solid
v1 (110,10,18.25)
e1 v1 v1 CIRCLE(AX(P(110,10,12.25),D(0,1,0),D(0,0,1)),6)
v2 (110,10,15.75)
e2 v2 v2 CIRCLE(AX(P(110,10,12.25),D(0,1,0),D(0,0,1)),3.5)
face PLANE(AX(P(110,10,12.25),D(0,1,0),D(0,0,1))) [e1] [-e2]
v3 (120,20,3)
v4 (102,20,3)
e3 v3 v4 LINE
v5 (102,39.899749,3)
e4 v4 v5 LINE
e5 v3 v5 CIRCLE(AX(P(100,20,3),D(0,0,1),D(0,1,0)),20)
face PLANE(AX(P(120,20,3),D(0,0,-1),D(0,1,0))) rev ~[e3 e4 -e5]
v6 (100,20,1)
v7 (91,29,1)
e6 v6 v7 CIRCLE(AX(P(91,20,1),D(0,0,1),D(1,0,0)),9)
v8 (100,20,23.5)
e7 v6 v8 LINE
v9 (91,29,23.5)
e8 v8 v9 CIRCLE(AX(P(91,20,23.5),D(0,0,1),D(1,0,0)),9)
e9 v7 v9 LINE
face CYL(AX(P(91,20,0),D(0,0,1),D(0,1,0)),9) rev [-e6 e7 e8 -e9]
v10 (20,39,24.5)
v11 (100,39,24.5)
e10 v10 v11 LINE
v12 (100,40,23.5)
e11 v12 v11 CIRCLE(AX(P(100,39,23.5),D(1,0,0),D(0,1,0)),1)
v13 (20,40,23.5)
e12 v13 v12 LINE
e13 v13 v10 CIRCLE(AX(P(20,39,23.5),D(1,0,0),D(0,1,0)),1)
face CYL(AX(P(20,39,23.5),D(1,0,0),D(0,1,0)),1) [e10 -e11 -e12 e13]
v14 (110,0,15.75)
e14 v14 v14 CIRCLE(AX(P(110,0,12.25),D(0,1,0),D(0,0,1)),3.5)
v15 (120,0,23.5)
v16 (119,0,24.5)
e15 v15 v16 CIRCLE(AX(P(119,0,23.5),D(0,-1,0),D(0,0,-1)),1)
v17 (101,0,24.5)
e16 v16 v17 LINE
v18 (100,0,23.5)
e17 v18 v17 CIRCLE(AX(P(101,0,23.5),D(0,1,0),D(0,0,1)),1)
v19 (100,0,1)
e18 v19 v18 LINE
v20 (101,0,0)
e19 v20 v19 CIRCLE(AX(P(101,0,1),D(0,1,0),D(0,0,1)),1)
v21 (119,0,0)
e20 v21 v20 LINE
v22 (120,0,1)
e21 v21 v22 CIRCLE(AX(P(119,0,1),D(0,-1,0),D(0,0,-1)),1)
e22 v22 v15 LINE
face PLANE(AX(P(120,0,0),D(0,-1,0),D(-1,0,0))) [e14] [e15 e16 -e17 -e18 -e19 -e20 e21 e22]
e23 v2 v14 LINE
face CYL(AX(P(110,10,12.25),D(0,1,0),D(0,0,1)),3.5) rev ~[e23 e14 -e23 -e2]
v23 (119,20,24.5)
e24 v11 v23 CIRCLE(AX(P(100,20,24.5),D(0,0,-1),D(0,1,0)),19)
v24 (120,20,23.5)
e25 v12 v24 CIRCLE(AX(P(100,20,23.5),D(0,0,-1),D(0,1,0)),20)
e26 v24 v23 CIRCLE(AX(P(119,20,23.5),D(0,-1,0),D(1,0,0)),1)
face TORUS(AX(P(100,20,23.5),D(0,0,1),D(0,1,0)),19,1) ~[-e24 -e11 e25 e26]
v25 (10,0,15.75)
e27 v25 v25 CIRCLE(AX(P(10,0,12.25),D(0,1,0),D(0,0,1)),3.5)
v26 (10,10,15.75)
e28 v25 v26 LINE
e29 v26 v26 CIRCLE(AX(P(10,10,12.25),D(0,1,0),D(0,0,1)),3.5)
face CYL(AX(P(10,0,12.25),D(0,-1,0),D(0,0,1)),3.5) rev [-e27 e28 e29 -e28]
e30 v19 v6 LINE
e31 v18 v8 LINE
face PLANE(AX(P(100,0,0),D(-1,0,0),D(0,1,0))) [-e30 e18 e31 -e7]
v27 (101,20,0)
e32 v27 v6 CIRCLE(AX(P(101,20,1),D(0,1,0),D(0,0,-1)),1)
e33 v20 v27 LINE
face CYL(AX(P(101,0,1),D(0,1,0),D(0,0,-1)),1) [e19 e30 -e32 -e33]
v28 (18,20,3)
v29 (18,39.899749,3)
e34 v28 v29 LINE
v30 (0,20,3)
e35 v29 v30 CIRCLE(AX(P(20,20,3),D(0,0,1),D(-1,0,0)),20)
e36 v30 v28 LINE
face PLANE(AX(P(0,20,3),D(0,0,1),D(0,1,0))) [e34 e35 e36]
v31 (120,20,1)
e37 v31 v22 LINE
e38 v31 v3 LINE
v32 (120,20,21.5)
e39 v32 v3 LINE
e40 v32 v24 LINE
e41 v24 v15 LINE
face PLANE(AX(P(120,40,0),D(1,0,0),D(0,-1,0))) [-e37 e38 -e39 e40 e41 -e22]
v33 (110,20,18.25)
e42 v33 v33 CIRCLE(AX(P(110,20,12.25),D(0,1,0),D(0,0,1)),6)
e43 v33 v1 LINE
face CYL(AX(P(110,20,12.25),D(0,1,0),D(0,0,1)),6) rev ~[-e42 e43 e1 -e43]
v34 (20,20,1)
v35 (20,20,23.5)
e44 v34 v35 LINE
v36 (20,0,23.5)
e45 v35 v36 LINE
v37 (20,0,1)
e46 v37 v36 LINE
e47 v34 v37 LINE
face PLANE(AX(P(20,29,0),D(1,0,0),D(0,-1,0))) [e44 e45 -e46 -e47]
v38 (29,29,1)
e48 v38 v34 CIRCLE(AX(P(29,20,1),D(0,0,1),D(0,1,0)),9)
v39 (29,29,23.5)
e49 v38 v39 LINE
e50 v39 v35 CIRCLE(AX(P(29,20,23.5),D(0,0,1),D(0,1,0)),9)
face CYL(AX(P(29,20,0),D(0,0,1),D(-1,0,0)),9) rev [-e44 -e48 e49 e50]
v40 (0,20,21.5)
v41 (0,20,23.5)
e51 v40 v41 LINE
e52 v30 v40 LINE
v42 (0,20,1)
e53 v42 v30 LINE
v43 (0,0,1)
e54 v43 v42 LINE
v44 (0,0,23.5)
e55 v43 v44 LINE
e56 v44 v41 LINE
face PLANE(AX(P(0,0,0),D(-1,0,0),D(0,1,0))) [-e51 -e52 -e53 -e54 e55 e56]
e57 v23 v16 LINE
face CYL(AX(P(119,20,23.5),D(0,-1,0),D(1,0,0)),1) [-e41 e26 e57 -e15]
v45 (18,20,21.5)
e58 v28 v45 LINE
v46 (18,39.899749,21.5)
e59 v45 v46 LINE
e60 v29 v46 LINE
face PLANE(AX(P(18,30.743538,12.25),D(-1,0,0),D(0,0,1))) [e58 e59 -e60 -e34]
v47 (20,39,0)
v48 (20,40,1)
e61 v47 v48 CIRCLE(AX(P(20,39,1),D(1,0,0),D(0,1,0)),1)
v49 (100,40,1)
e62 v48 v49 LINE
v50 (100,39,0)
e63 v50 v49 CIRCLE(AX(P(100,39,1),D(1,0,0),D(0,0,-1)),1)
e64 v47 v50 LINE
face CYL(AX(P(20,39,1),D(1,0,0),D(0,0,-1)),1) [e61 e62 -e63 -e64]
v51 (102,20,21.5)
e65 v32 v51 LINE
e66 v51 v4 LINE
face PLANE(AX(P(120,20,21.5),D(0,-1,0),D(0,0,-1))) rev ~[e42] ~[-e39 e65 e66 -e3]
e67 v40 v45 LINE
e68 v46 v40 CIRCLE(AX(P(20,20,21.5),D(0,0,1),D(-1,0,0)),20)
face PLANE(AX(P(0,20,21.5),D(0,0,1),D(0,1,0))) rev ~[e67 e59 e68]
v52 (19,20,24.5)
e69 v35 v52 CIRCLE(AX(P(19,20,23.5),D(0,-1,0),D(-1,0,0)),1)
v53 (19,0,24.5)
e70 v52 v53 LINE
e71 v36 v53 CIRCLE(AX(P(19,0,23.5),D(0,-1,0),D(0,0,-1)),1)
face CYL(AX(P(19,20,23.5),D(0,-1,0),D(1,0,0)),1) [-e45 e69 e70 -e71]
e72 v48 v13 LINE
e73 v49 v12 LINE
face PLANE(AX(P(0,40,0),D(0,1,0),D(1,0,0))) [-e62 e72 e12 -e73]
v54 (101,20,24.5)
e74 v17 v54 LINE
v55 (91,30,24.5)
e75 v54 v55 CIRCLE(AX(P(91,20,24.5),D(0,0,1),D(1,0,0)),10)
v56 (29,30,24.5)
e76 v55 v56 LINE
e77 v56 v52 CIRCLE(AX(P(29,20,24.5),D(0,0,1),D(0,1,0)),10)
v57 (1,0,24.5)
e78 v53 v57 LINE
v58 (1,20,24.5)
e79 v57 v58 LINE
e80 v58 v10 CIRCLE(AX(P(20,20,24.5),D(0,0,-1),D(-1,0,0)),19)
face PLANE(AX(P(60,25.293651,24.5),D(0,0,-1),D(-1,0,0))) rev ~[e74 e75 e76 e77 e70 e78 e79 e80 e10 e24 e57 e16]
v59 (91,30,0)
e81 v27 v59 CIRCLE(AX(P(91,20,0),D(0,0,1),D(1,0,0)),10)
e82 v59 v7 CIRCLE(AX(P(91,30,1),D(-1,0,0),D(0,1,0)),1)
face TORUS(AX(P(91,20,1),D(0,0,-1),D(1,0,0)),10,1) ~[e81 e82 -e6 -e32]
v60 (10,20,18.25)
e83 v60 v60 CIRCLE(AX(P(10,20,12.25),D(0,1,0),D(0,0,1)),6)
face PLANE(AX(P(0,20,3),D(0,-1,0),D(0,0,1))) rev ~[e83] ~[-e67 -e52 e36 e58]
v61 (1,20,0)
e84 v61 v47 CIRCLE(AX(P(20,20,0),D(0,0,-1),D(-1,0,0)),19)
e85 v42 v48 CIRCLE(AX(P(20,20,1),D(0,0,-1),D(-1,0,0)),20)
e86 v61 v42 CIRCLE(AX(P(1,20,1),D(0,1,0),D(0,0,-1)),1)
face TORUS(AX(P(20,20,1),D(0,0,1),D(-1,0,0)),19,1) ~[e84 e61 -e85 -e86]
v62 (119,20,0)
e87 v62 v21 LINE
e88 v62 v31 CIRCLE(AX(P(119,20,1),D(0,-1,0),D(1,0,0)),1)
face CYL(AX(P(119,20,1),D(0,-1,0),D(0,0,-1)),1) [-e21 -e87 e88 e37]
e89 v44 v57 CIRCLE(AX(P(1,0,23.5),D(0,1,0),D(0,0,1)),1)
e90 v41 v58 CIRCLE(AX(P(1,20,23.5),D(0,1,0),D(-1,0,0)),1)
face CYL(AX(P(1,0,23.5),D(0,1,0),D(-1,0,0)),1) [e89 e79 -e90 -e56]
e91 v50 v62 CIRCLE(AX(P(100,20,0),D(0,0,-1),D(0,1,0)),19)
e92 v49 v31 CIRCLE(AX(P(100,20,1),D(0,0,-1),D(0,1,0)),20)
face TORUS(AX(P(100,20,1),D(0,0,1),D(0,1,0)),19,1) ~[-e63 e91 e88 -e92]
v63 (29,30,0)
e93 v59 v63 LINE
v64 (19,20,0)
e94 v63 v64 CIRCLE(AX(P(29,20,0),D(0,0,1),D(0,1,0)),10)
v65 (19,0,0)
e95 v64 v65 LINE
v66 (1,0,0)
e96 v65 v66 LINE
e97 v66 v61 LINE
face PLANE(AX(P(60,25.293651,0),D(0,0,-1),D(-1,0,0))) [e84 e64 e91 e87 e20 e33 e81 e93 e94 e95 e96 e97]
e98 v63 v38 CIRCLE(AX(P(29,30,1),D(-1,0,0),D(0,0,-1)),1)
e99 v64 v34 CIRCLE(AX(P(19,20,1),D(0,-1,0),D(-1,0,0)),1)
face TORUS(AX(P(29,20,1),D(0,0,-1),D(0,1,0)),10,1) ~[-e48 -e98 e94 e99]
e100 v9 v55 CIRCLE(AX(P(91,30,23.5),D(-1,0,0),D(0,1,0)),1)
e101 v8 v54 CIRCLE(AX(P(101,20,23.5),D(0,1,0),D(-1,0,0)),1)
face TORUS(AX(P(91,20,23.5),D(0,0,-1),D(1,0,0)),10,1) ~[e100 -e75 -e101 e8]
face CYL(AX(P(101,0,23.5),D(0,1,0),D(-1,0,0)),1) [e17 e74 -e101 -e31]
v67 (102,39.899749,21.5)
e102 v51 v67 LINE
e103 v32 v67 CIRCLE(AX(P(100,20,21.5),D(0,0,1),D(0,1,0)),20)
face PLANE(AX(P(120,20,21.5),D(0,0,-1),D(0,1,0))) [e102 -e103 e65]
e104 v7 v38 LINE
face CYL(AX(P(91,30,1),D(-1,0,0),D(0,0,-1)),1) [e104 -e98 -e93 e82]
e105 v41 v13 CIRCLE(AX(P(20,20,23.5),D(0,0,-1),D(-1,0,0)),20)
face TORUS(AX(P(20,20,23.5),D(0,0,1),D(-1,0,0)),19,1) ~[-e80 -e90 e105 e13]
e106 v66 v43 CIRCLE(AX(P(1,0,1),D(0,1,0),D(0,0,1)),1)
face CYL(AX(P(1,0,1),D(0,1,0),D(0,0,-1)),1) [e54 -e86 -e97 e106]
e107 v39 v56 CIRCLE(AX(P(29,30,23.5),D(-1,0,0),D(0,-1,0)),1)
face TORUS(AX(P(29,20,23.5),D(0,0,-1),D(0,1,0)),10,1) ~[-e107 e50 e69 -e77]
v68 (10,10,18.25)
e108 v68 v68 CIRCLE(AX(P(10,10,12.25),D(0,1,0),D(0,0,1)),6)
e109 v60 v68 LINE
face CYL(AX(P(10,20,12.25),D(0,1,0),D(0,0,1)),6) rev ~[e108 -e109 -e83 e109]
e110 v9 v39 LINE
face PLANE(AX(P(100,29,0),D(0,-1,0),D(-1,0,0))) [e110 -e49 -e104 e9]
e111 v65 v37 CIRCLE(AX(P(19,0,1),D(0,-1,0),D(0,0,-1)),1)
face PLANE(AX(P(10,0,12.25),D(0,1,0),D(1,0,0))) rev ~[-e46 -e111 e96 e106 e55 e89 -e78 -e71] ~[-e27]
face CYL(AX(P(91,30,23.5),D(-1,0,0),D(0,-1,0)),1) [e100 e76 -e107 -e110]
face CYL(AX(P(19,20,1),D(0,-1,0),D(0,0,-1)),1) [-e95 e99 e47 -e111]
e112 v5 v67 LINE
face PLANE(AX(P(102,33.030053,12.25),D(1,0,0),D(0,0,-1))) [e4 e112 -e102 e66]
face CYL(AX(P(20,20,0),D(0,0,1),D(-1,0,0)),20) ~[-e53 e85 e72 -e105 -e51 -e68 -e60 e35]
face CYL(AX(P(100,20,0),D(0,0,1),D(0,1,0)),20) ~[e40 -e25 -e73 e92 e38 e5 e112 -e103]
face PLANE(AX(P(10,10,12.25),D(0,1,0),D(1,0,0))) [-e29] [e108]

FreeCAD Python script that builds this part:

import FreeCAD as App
import Part
import Sketcher

V = App.Vector
Q = App.Units.Quantity


def edges_at(feature, points):
    """Names of the edges that pass closest to the given points."""
    edges = feature.Shape.Edges
    near = lambda p: min(range(len(edges)), key=lambda i: edges[i].distToShape(Part.Vertex(*p))[0])
    return sorted({f"Edge{near(p) + 1}" for p in points})


def add_polygon(sketch, points):
    """Adds a closed chain of lines whose ends are joined by coincident constraints."""
    first, n = sketch.GeometryCount, len(points)
    for a, b in zip(points, points[1:] + points[:1]):
        sketch.addGeometry(Part.LineSegment(App.Vector(*a, 0), App.Vector(*b, 0)), False)
    for i in range(n):
        sketch.addConstraint(Sketcher.Constraint("Coincident", first + i, 2, first + (i + 1) % n, 1))

doc = App.newDocument("Part")
body = doc.addObject("PartDesign::Body", "Body")

sketch1 = body.newObject("Sketcher::SketchObject", "Sketch")
sketch1.AttachmentSupport = (doc.getObject("XY_Plane"), [""])
sketch1.MapMode = "FlatFace"
add_polygon(sketch1, [(0, 40), (0, 0), (20, 0), (20, 29), (100, 29), (100, 0), (120, 0), (120, 40)])
sketch1.addConstraint([
    Sketcher.Constraint("Vertical", 0),
    Sketcher.Constraint("Horizontal", 1),
    Sketcher.Constraint("Vertical", 2),
    Sketcher.Constraint("Horizontal", 3),
    Sketcher.Constraint("Vertical", 4),
    Sketcher.Constraint("Horizontal", 5),
    Sketcher.Constraint("Vertical", 6),
    Sketcher.Constraint("Horizontal", 7),
    Sketcher.Constraint("Coincident", 0, 2, -1, 1),
    Sketcher.Constraint("PointOnObject", 4, 2, -1),
    Sketcher.Constraint("Equal", 1, 5),
    Sketcher.Constraint("DistanceX", 1, 1, 1, 2, Q("20 mm")),
    Sketcher.Constraint("DistanceX", 3, 1, 3, 2, Q("80 mm")),
    Sketcher.Constraint("DistanceY", 0, 2, 0, 1, Q("40 mm")),
    Sketcher.Constraint("DistanceY", 2, 1, 2, 2, Q("29 mm")),
])
pad1 = body.newObject("PartDesign::Pad", "Pad")
pad1.Profile = sketch1
pad1.Length = 24.5
doc.recompute()

fillet = body.newObject("PartDesign::Fillet", "Fillet")
fillet.Base = (pad1, edges_at(pad1, [(0, 40, 12.25), (120, 40, 12.25)]))
fillet.Radius = 20
doc.recompute()

fillet2 = body.newObject("PartDesign::Fillet", "Fillet001")
fillet2.Base = (fillet, edges_at(fillet, [(100, 29, 12.25), (20, 29, 12.25)]))
fillet2.Radius = 9

sketch2 = body.newObject("Sketcher::SketchObject", "Sketch001")
sketch2.AttachmentSupport = (doc.getObject("YZ_Plane"), [""])
sketch2.MapMode = "FlatFace"
sketch2.AttachmentOffset = App.Placement(V(0, 0, 120), App.Rotation())
add_polygon(sketch2, [(46.060106, 21.5), (20, 21.5), (20, 3), (46.060106, 3)])
sketch2.addConstraint([
    Sketcher.Constraint("Horizontal", 0),
    Sketcher.Constraint("Vertical", 1),
    Sketcher.Constraint("Horizontal", 2),
    Sketcher.Constraint("Vertical", 3),
    Sketcher.Constraint("DistanceY", 1, 2, 1, 1, Q("18.5 mm")),
    Sketcher.Constraint("DistanceX", -1, 1, 0, 2, Q("20 mm")),
    Sketcher.Constraint("DistanceY", -1, 1, 1, 2, Q("3 mm")),
    Sketcher.Constraint("DistanceX", 0, 2, 0, 1, Q("26.060106 mm")),
])
pocket1 = body.newObject("PartDesign::Pocket", "Pocket")
pocket1.Profile = sketch2
pocket1.Length = 18

sketch3 = body.newObject("Sketcher::SketchObject", "Sketch002")
sketch3.AttachmentSupport = (doc.getObject("YZ_Plane"), [""])
sketch3.MapMode = "FlatFace"
add_polygon(sketch3, [(41.487076, 3), (20, 3), (20, 21.5), (41.487076, 21.5)])
sketch3.addConstraint([
    Sketcher.Constraint("Horizontal", 0),
    Sketcher.Constraint("Vertical", 1),
    Sketcher.Constraint("Horizontal", 2),
    Sketcher.Constraint("Vertical", 3),
    Sketcher.Constraint("DistanceY", 1, 1, 1, 2, Q("18.5 mm")),
    Sketcher.Constraint("DistanceX", -1, 1, 0, 2, Q("20 mm")),
    Sketcher.Constraint("DistanceY", -1, 1, 0, 2, Q("3 mm")),
    Sketcher.Constraint("DistanceX", 0, 2, 0, 1, Q("21.487076 mm")),
])
pocket2 = body.newObject("PartDesign::Pocket", "Pocket001")
pocket2.Profile = sketch3
pocket2.Length = 18
pocket2.Reversed = True
doc.recompute()

fillet3 = body.newObject("PartDesign::Fillet", "Fillet002")
fillet3.Base = (pocket2, edges_at(pocket2, [
    (20, 10, 0),
    (120, 10, 24.5),
    (0, 10, 0),
    (0, 10, 24.5),
    (60, 40, 0),
    (114.142, 34.142, 0),
    (5.858, 34.142, 0),
    (60, 40, 24.5),
    (114.142, 34.142, 24.5),
    (5.858, 34.142, 24.5),
    (60, 29, 0),
    (60, 29, 24.5),
    (100, 10, 0),
    (100, 10, 24.5),
    (22.636, 26.364, 0),
    (22.636, 26.364, 24.5),
    (97.364, 26.364, 0),
    (97.364, 26.364, 24.5),
    (20, 10, 24.5),
    (120, 10, 0),
]))
fillet3.Radius = 1

sketch4 = body.newObject("Sketcher::SketchObject", "Sketch003")
sketch4.AttachmentSupport = (doc.getObject("XZ_Plane"), [""])
sketch4.MapMode = "FlatFace"
sketch4.addGeometry([
    Part.Circle(V(10, 12.25, 0), V(0, 0, 1), 4),
    Part.Circle(V(110, 12.25, 0), V(0, 0, 1), 3.25),
], False)
sketch4.addConstraint([
    Sketcher.Constraint("Horizontal", 0, 3, 1, 3),
    Sketcher.Constraint("Diameter", 0, Q("8 mm")),
    Sketcher.Constraint("Diameter", 1, Q("6.5 mm")),
    Sketcher.Constraint("DistanceX", -1, 1, 0, 3, Q("10 mm")),
    Sketcher.Constraint("DistanceX", -1, 1, 1, 3, Q("110 mm")),
    Sketcher.Constraint("DistanceY", -1, 1, 0, 3, Q("12.25 mm")),
])
pocket3 = body.newObject("PartDesign::Pocket", "Pocket002")
pocket3.Profile = sketch4
pocket3.Type = "ThroughAll"

sketch5 = body.newObject("Sketcher::SketchObject", "Sketch004")
sketch5.AttachmentSupport = (doc.getObject("XZ_Plane"), [""])
sketch5.MapMode = "FlatFace"
sketch5.AttachmentOffset = App.Placement(V(0, 0, -20), App.Rotation())
sketch5.addGeometry([
    Part.Circle(V(10, 12.25, 0), V(0, 0, 1), 6),
    Part.Circle(V(110, 12.25, 0), V(0, 0, 1), 6),
], False)
sketch5.addConstraint([
    Sketcher.Constraint("Equal", 0, 1),
    Sketcher.Constraint("Horizontal", 0, 3, 1, 3),
    Sketcher.Constraint("Diameter", 0, Q("12 mm")),
    Sketcher.Constraint("DistanceX", -1, 1, 0, 3, Q("10 mm")),
    Sketcher.Constraint("DistanceX", -1, 1, 1, 3, Q("110 mm")),
    Sketcher.Constraint("DistanceY", -1, 1, 0, 3, Q("12.25 mm")),
])
pocket4 = body.newObject("PartDesign::Pocket", "Pocket003")
pocket4.Profile = sketch5
pocket4.Length = 10
pocket4.Reversed = True

sketch6 = body.newObject("Sketcher::SketchObject", "Sketch005")
sketch6.AttachmentSupport = (doc.getObject("XZ_Plane"), [""])
sketch6.MapMode = "FlatFace"
sketch6.AttachmentOffset = App.Placement(V(0, 0, -10), App.Rotation())
sketch6.addGeometry(Part.Circle(V(110, 12.25, 0), V(0, 0, 1), 3.5), False)
sketch6.addConstraint([
    Sketcher.Constraint("Diameter", 0, Q("7 mm")),
    Sketcher.Constraint("DistanceX", -1, 1, 0, 3, Q("110 mm")),
    Sketcher.Constraint("DistanceY", -1, 1, 0, 3, Q("12.25 mm")),
])
pocket5 = body.newObject("PartDesign::Pocket", "Pocket004")
pocket5.Profile = sketch6
pocket5.Type = "ThroughAll"
pocket5.Reversed = True

sketch7 = body.newObject("Sketcher::SketchObject", "Sketch006")
sketch7.AttachmentSupport = (doc.getObject("XZ_Plane"), [""])
sketch7.MapMode = "FlatFace"
sketch7.addGeometry([
    Part.Circle(V(10, 12.25, 0), V(0, 0, 1), 4),
    Part.Circle(V(10, 12.25, 0), V(0, 0, 1), 3.5),
], False)
sketch7.addConstraint([
    Sketcher.Constraint("Coincident", 1, 3, 0, 3),
    Sketcher.Constraint("Diameter", 0, Q("8 mm")),
    Sketcher.Constraint("Diameter", 1, Q("7 mm")),
    Sketcher.Constraint("DistanceX", -1, 1, 0, 3, Q("10 mm")),
    Sketcher.Constraint("DistanceY", -1, 1, 0, 3, Q("12.25 mm")),
])
pad2 = body.newObject("PartDesign::Pad", "Pad001")
pad2.Profile = sketch7
pad2.Length = 10
pad2.Reversed = True

doc.recompute()
